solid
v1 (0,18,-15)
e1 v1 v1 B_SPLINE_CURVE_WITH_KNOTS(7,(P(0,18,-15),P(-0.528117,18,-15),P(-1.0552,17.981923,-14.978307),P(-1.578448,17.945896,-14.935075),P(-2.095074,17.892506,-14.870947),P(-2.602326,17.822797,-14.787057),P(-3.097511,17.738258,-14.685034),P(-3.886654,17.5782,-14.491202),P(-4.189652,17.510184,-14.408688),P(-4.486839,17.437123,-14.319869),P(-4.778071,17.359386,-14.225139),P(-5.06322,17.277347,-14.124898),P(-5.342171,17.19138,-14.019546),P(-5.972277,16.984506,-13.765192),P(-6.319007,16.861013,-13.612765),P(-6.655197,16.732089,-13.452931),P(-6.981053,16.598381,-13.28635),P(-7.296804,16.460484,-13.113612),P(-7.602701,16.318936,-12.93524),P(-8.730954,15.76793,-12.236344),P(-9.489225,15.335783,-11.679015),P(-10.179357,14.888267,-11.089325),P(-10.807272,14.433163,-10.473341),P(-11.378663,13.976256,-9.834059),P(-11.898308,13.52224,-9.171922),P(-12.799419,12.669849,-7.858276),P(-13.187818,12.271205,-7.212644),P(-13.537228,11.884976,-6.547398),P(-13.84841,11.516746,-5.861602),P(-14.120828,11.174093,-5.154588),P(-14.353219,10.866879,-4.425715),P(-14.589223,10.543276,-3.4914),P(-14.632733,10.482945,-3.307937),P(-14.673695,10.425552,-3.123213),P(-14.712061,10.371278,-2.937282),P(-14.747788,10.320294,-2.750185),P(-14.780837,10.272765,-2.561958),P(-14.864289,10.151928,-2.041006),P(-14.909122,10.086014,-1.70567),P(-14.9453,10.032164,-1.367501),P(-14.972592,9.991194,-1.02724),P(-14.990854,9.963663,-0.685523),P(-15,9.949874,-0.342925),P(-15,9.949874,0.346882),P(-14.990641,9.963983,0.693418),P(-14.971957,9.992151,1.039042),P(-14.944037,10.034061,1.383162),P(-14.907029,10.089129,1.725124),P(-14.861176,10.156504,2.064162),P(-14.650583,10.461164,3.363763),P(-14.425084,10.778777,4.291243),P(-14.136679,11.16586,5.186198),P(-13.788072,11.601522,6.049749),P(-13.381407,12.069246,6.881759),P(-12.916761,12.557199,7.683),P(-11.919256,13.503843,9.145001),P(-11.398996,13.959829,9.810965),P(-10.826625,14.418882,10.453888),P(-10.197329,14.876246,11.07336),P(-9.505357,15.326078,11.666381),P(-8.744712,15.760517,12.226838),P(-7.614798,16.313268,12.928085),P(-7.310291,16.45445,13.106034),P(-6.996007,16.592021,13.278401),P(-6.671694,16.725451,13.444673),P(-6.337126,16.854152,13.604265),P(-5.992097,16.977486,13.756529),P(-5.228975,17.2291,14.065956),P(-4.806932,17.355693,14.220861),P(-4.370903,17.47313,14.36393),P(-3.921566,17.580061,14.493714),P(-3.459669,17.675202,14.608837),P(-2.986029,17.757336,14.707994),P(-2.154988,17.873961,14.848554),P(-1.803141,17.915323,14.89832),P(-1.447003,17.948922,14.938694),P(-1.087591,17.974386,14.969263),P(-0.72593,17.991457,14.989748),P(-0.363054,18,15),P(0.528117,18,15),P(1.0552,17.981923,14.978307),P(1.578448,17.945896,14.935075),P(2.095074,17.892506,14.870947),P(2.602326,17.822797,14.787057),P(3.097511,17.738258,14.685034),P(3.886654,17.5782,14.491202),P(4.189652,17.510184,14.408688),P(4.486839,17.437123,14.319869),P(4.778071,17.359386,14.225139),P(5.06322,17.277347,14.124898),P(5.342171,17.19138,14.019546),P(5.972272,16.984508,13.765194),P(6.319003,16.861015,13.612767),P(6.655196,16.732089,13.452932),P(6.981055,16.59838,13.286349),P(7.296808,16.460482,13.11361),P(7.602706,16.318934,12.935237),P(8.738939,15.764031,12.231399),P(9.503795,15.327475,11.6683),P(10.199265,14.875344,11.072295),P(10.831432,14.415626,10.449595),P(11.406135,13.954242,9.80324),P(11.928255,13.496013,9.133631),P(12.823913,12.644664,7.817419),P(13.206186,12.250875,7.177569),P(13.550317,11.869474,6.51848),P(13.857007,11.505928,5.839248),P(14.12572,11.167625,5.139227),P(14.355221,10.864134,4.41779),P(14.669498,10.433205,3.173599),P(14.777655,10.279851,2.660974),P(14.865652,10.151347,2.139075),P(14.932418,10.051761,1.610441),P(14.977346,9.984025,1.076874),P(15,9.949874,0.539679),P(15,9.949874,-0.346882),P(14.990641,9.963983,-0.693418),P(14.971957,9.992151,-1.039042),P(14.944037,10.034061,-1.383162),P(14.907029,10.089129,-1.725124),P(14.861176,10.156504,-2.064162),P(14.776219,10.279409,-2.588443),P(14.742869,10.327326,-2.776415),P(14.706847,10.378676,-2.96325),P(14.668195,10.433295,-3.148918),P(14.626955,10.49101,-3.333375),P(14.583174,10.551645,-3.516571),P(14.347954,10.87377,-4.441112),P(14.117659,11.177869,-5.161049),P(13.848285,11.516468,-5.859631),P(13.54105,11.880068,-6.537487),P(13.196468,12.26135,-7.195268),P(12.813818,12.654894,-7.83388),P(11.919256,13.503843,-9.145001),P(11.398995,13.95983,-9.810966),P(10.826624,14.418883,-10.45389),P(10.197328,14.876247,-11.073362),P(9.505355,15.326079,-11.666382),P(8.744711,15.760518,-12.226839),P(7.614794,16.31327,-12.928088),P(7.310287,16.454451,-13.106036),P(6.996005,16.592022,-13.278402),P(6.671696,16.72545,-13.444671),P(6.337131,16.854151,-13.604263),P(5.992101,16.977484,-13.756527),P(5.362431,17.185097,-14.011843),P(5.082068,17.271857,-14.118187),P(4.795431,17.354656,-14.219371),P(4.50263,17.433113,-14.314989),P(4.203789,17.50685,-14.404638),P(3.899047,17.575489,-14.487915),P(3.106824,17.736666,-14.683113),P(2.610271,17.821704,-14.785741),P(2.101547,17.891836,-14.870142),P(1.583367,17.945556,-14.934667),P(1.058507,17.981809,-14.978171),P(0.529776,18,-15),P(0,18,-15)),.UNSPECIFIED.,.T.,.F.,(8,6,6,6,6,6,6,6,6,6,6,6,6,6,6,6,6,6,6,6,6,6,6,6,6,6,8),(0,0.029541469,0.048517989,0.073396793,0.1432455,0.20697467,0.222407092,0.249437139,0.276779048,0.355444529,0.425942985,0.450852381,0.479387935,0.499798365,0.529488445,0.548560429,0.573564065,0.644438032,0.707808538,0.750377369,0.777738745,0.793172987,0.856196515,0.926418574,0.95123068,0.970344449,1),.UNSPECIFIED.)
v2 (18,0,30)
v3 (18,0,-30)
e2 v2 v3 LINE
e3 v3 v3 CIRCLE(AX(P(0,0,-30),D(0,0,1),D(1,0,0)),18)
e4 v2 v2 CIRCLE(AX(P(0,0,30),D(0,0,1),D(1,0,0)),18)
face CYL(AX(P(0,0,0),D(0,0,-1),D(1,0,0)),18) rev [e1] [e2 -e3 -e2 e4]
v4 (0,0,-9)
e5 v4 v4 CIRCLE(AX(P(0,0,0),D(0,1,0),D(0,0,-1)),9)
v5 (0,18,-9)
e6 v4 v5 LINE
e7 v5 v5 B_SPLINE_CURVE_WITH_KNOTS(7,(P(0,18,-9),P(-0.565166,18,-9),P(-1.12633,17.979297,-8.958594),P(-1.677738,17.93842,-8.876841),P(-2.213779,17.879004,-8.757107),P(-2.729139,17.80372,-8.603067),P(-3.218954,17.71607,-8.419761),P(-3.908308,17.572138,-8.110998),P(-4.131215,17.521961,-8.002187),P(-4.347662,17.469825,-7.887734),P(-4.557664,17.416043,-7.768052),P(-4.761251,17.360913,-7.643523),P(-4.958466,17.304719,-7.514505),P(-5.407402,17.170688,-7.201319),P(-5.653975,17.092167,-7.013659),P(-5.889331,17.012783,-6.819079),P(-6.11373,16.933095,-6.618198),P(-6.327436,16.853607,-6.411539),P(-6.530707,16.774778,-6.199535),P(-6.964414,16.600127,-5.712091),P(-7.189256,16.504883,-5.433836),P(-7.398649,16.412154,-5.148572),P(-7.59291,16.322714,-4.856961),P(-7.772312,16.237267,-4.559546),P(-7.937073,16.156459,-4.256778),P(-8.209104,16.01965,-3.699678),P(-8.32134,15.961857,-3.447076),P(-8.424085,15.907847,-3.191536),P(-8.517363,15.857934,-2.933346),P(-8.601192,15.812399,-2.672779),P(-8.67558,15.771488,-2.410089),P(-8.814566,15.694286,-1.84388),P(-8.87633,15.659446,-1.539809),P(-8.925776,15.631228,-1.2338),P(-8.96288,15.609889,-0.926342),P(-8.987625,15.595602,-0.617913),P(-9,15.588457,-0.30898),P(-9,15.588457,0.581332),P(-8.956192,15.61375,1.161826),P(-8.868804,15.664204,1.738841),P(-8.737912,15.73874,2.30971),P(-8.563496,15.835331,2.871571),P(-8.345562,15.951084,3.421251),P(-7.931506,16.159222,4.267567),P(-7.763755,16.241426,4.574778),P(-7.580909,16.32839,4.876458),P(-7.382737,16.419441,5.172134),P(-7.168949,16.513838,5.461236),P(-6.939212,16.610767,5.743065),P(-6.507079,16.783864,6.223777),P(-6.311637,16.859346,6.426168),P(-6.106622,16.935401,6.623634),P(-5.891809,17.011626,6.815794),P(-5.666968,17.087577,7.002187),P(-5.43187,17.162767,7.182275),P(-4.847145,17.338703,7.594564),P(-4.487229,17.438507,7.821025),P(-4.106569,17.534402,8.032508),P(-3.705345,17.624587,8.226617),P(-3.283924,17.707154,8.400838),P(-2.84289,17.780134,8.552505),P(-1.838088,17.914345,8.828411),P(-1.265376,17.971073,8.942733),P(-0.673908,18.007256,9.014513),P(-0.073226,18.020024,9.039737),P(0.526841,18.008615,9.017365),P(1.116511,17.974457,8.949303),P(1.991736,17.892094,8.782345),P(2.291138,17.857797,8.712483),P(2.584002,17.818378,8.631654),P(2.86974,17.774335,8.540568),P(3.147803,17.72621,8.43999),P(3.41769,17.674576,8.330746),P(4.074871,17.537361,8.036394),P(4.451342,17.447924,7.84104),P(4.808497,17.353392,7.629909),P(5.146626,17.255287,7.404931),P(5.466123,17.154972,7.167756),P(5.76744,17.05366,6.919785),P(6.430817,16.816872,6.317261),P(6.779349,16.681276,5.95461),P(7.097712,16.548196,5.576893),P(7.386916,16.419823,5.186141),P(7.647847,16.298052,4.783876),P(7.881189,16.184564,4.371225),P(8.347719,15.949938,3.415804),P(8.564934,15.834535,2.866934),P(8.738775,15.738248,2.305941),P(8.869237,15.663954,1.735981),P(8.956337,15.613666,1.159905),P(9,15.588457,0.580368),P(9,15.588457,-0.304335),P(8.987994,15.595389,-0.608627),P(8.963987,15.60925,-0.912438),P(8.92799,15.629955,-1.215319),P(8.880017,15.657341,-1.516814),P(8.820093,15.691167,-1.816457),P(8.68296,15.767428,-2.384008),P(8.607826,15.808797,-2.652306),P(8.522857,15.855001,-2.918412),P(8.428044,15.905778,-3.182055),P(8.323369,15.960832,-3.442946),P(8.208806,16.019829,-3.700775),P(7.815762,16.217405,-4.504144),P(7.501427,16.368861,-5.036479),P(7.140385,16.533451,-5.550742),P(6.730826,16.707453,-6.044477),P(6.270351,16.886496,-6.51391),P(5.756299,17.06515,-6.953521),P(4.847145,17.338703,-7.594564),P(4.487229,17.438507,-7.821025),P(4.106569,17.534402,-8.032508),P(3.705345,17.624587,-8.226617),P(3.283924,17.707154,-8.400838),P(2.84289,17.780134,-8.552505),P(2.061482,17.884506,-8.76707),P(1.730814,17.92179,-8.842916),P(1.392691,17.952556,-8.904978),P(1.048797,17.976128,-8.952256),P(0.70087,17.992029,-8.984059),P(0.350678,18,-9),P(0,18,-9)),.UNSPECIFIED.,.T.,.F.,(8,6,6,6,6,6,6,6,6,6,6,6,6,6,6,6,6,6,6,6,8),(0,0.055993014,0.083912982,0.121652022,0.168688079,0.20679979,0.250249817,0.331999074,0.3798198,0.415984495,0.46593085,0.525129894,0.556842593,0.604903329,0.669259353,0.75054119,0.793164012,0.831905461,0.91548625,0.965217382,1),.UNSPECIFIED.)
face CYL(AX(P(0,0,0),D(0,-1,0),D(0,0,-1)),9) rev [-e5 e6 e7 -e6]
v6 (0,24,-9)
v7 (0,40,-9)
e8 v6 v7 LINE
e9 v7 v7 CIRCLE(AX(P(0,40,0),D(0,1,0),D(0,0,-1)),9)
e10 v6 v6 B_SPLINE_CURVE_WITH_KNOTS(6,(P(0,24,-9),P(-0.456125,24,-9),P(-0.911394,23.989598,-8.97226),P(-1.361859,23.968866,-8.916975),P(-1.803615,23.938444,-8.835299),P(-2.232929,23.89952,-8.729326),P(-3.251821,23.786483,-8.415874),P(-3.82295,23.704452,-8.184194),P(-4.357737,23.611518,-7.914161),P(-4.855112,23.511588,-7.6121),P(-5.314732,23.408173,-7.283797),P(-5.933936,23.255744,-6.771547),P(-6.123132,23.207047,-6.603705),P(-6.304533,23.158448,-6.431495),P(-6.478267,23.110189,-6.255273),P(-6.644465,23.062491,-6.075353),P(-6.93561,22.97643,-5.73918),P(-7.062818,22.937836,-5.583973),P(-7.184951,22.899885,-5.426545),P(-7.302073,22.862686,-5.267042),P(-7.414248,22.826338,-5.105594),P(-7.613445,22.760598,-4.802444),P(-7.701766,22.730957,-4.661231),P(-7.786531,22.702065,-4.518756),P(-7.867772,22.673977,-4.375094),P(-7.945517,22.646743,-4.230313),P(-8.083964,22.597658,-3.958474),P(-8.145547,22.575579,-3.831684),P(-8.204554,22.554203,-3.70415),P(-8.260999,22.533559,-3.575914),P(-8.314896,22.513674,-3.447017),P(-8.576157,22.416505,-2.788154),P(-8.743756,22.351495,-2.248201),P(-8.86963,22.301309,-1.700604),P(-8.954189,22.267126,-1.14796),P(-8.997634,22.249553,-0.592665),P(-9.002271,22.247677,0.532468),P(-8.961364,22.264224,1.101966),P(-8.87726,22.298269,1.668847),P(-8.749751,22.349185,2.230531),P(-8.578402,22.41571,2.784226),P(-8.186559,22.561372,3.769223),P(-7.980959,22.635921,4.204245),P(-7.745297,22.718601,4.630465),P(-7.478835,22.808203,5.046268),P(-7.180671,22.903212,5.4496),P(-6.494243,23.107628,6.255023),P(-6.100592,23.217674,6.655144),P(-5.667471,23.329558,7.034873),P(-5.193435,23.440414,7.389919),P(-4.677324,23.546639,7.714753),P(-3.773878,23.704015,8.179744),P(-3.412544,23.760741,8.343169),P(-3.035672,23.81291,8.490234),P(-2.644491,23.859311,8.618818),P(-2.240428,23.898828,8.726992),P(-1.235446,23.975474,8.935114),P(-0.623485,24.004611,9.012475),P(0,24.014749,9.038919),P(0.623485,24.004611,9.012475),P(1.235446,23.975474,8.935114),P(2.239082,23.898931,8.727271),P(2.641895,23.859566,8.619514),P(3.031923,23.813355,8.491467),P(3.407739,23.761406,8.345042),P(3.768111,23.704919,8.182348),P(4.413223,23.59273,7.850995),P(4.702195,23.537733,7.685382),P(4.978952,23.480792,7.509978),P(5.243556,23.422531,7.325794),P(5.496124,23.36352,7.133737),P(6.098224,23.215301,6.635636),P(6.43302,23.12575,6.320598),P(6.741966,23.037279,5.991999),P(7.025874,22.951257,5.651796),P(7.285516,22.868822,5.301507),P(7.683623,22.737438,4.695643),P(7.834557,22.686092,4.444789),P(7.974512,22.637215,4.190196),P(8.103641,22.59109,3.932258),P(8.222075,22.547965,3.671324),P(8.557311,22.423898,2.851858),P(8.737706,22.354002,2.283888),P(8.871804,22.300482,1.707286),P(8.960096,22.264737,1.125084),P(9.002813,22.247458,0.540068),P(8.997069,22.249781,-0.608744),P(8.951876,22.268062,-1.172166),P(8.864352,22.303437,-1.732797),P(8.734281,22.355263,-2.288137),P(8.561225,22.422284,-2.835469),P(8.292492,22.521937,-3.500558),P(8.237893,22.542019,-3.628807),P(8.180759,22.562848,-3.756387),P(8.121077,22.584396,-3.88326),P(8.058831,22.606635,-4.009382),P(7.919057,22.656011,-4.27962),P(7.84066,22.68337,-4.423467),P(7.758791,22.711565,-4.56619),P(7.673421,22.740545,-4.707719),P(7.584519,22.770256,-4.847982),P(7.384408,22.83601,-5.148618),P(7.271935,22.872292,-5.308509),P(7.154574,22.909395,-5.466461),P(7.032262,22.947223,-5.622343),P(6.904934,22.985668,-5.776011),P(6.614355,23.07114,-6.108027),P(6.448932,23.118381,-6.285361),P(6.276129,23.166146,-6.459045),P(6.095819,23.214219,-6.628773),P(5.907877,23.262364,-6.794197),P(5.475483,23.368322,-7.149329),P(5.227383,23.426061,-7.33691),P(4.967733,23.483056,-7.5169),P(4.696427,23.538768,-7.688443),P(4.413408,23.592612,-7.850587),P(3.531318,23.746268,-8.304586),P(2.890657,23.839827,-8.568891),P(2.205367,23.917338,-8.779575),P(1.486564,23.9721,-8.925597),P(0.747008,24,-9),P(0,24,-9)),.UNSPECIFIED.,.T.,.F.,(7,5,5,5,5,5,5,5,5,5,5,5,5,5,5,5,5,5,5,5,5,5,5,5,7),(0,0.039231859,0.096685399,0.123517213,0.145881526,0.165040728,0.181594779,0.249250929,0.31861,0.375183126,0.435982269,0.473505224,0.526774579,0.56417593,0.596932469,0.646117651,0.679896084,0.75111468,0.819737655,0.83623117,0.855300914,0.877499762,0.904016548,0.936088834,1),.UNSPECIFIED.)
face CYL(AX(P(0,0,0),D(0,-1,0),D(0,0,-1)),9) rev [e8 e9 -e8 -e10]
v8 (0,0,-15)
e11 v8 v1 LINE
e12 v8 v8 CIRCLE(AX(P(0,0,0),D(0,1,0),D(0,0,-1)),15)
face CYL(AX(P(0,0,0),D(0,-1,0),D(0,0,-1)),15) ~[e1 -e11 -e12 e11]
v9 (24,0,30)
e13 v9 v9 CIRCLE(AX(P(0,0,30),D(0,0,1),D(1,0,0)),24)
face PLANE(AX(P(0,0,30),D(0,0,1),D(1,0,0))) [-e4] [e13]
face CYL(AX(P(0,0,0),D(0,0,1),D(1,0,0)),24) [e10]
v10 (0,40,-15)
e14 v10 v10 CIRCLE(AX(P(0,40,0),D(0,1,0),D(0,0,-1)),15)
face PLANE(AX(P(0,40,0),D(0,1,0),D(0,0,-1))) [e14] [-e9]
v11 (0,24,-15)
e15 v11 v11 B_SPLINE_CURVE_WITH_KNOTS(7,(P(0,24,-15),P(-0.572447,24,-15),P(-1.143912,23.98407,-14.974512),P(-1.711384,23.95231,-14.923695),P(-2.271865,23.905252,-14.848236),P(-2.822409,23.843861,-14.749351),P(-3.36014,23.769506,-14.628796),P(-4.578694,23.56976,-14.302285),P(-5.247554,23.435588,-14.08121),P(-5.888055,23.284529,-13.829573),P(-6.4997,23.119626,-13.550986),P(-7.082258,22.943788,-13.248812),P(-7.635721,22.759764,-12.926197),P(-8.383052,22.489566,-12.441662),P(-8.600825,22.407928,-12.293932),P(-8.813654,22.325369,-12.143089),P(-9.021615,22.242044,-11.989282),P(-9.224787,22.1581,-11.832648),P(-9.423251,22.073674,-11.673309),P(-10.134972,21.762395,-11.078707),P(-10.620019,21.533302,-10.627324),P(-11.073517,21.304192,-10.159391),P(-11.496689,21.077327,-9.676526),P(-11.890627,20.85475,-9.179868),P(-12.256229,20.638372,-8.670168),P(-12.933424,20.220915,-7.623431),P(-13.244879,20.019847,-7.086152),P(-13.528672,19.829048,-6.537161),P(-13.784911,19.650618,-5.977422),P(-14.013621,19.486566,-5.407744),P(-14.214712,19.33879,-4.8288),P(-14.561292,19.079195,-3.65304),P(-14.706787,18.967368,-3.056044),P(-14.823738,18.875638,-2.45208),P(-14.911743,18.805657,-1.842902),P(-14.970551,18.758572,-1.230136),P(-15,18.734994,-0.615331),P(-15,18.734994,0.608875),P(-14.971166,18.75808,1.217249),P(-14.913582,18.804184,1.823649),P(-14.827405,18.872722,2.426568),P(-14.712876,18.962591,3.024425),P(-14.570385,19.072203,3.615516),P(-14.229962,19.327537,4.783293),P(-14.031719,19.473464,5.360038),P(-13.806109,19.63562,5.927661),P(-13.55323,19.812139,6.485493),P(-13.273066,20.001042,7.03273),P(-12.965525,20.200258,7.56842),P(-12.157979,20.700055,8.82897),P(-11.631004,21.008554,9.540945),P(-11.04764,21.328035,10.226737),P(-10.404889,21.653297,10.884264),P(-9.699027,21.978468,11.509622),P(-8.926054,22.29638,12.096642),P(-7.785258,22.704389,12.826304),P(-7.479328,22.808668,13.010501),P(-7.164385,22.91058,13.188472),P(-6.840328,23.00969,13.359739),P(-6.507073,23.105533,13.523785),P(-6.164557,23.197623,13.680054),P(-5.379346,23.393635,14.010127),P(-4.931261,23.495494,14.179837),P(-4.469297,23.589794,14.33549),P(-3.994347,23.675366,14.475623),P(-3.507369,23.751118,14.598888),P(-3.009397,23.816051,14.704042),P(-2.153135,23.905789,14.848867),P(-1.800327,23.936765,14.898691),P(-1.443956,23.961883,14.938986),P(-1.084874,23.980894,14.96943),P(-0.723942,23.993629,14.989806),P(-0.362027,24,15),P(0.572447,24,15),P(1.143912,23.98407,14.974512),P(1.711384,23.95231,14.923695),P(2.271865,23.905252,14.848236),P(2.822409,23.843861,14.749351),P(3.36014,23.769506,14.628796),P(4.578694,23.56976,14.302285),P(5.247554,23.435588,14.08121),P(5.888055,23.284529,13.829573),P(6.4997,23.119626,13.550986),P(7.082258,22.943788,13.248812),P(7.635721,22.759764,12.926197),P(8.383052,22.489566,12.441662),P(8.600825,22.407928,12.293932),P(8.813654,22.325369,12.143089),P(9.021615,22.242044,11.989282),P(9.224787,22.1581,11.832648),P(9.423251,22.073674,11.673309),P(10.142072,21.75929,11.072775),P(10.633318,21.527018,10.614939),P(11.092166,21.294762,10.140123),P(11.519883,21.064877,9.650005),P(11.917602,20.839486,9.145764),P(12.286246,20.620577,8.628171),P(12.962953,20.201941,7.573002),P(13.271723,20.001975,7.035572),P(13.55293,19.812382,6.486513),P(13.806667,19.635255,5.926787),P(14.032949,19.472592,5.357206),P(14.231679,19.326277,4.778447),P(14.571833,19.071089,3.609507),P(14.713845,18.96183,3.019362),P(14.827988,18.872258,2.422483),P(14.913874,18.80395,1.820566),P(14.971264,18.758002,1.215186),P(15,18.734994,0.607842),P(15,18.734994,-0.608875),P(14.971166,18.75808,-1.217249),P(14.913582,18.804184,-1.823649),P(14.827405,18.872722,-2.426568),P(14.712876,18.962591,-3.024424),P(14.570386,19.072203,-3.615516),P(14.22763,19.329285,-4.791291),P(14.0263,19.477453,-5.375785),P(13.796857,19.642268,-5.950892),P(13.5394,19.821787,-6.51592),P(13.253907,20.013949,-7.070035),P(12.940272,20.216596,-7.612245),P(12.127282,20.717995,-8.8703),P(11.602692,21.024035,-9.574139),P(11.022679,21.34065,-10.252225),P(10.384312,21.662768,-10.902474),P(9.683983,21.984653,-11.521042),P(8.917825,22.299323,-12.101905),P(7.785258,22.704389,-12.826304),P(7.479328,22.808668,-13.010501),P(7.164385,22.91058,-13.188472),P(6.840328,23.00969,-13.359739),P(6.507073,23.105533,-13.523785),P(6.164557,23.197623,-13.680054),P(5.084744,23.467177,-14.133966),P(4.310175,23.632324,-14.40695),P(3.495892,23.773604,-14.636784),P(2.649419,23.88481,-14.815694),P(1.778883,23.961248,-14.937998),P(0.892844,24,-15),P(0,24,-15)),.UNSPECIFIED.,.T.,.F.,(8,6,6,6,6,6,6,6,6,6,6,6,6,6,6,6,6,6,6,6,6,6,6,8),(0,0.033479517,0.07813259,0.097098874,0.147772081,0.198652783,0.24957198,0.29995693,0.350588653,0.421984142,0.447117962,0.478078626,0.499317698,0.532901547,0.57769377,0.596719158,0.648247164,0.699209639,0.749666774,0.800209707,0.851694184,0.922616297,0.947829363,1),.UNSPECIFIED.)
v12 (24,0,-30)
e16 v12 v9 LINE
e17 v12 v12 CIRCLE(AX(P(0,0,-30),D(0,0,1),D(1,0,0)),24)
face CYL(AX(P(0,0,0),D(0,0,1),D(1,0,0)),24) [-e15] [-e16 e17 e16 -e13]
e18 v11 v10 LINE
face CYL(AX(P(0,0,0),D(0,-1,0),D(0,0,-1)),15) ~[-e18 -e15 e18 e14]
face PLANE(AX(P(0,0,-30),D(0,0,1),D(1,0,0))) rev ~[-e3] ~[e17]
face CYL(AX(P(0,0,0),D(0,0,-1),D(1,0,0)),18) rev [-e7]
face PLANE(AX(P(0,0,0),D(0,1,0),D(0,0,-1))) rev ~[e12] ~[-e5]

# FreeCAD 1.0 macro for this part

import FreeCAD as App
import Part
import Sketcher

doc = App.newDocument("Part")
body = doc.addObject("PartDesign::Body", "Body")

# Sketch on XY plane
sketch1 = body.newObject("Sketcher::SketchObject", "Sketch")
sketch1.AttachmentSupport = (doc.getObject("XY_Plane"), [""])
sketch1.MapMode = "FlatFace"
sketch1.addGeometry([
    Part.Circle(App.Vector(0, 0, 0), App.Vector(0, 0, 1), 24),
    Part.Circle(App.Vector(0, 0, 0), App.Vector(0, 0, 1), 18),
], False)
sketch1.addConstraint([
    Sketcher.Constraint("Coincident", 0, 3, -1, 1),
    Sketcher.Constraint("Coincident", 1, 3, -1, 1),
    Sketcher.Constraint("Diameter", 0, 48.0),
    Sketcher.Constraint("Diameter", 1, 36.0),
])
pad1 = body.newObject("PartDesign::Pad", "Pad")
pad1.Profile = sketch1
pad1.Length = 60
pad1.Midplane = True

# Sketch on XZ plane
sketch2 = body.newObject("Sketcher::SketchObject", "Sketch001")
sketch2.AttachmentSupport = (doc.getObject("XZ_Plane"), [""])
sketch2.MapMode = "FlatFace"
sketch2.addGeometry([
    Part.Circle(App.Vector(0, 0, 0), App.Vector(0, 0, 1), 15),
    Part.Circle(App.Vector(0, 0, 0), App.Vector(0, 0, 1), 9),
], False)
sketch2.addConstraint([
    Sketcher.Constraint("Coincident", 0, 3, -1, 1),
    Sketcher.Constraint("Coincident", 1, 3, -1, 1),
    Sketcher.Constraint("Diameter", 0, 30.0),
    Sketcher.Constraint("Diameter", 1, 18.0),
])
pad2 = body.newObject("PartDesign::Pad", "Pad001")
pad2.Profile = sketch2
pad2.Length = 40
pad2.Reversed = True

doc.recompute()
